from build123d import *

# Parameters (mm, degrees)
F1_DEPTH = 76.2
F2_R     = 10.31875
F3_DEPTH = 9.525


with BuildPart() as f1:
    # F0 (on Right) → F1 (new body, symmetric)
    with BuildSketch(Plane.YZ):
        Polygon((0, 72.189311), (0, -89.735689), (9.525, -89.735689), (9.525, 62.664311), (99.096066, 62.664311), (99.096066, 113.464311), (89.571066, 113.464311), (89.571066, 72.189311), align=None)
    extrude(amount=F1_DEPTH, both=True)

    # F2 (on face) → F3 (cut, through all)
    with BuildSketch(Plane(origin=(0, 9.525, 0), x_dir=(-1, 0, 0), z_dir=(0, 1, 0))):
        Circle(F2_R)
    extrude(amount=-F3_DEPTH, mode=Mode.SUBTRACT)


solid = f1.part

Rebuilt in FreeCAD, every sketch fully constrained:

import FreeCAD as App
import Part
import Sketcher

V = App.Vector
Q = App.Units.Quantity


def add_polygon(sketch, points):
    """Adds a closed chain of lines whose ends are joined by coincident constraints."""
    first, n = sketch.GeometryCount, len(points)
    for a, b in zip(points, points[1:] + points[:1]):
        sketch.addGeometry(Part.LineSegment(App.Vector(*a, 0), App.Vector(*b, 0)), False)
    for i in range(n):
        sketch.addConstraint(Sketcher.Constraint("Coincident", first + i, 2, first + (i + 1) % n, 1))

doc = App.newDocument("Part")
body = doc.addObject("PartDesign::Body", "Body")

sketch1 = body.newObject("Sketcher::SketchObject", "Sketch")
sketch1.AttachmentSupport = (doc.getObject("YZ_Plane"), [""])
sketch1.MapMode = "FlatFace"
add_polygon(sketch1, [(0, 72), (0, -90), (10, -90), (10, 63), (99, 63), (99, 113), (90, 113), (90, 72)])
sketch1.addConstraint([
    Sketcher.Constraint("Vertical", 0),
    Sketcher.Constraint("Horizontal", 1),
    Sketcher.Constraint("Vertical", 2),
    Sketcher.Constraint("Horizontal", 3),
    Sketcher.Constraint("Vertical", 4),
    Sketcher.Constraint("Horizontal", 5),
    Sketcher.Constraint("Vertical", 6),
    Sketcher.Constraint("Horizontal", 7),
    Sketcher.Constraint("PointOnObject", 0, 2, -2),
    Sketcher.Constraint("Equal", 1, 5),
    Sketcher.Constraint("DistanceY", 2, 1, 2, 2, Q("6 in")),
    Sketcher.Constraint("DistanceY", 4, 1, 4, 2, Q("2 in")),
    Sketcher.Constraint("DistanceX", 1, 1, 1, 2, Q("0.375 in")),
    Sketcher.Constraint("DistanceY", 0, 2, 0, 1, Q("6.375 in")),
    Sketcher.Constraint("DistanceX", 3, 1, 3, 2, 89.571066),
    Sketcher.Constraint("DistanceY", 0, 2, -1, 1, 89.735689),
])
pad1 = body.newObject("PartDesign::Pad", "Pad")
pad1.Profile = sketch1
pad1.Length = Q("6 in")
pad1.Midplane = True

sketch2 = body.newObject("Sketcher::SketchObject", "Sketch001")
sketch2.AttachmentSupport = (doc.getObject("XZ_Plane"), [""])
sketch2.MapMode = "FlatFace"
sketch2.AttachmentOffset = App.Placement(V(0, 0, -0.375 * 25.4), App.Rotation())
sketch2.addGeometry(Part.Circle(V(0, 0, 0), V(0, 0, 1), 10), False)
sketch2.addConstraint([
    Sketcher.Constraint("Coincident", 0, 3, -1, 1),
    Sketcher.Constraint("Diameter", 0, Q("0.8125 in")),
])
pocket1 = body.newObject("PartDesign::Pocket", "Pocket")
pocket1.Profile = sketch2
pocket1.Type = "ThroughAll"
pocket1.Reversed = True

doc.recompute()
